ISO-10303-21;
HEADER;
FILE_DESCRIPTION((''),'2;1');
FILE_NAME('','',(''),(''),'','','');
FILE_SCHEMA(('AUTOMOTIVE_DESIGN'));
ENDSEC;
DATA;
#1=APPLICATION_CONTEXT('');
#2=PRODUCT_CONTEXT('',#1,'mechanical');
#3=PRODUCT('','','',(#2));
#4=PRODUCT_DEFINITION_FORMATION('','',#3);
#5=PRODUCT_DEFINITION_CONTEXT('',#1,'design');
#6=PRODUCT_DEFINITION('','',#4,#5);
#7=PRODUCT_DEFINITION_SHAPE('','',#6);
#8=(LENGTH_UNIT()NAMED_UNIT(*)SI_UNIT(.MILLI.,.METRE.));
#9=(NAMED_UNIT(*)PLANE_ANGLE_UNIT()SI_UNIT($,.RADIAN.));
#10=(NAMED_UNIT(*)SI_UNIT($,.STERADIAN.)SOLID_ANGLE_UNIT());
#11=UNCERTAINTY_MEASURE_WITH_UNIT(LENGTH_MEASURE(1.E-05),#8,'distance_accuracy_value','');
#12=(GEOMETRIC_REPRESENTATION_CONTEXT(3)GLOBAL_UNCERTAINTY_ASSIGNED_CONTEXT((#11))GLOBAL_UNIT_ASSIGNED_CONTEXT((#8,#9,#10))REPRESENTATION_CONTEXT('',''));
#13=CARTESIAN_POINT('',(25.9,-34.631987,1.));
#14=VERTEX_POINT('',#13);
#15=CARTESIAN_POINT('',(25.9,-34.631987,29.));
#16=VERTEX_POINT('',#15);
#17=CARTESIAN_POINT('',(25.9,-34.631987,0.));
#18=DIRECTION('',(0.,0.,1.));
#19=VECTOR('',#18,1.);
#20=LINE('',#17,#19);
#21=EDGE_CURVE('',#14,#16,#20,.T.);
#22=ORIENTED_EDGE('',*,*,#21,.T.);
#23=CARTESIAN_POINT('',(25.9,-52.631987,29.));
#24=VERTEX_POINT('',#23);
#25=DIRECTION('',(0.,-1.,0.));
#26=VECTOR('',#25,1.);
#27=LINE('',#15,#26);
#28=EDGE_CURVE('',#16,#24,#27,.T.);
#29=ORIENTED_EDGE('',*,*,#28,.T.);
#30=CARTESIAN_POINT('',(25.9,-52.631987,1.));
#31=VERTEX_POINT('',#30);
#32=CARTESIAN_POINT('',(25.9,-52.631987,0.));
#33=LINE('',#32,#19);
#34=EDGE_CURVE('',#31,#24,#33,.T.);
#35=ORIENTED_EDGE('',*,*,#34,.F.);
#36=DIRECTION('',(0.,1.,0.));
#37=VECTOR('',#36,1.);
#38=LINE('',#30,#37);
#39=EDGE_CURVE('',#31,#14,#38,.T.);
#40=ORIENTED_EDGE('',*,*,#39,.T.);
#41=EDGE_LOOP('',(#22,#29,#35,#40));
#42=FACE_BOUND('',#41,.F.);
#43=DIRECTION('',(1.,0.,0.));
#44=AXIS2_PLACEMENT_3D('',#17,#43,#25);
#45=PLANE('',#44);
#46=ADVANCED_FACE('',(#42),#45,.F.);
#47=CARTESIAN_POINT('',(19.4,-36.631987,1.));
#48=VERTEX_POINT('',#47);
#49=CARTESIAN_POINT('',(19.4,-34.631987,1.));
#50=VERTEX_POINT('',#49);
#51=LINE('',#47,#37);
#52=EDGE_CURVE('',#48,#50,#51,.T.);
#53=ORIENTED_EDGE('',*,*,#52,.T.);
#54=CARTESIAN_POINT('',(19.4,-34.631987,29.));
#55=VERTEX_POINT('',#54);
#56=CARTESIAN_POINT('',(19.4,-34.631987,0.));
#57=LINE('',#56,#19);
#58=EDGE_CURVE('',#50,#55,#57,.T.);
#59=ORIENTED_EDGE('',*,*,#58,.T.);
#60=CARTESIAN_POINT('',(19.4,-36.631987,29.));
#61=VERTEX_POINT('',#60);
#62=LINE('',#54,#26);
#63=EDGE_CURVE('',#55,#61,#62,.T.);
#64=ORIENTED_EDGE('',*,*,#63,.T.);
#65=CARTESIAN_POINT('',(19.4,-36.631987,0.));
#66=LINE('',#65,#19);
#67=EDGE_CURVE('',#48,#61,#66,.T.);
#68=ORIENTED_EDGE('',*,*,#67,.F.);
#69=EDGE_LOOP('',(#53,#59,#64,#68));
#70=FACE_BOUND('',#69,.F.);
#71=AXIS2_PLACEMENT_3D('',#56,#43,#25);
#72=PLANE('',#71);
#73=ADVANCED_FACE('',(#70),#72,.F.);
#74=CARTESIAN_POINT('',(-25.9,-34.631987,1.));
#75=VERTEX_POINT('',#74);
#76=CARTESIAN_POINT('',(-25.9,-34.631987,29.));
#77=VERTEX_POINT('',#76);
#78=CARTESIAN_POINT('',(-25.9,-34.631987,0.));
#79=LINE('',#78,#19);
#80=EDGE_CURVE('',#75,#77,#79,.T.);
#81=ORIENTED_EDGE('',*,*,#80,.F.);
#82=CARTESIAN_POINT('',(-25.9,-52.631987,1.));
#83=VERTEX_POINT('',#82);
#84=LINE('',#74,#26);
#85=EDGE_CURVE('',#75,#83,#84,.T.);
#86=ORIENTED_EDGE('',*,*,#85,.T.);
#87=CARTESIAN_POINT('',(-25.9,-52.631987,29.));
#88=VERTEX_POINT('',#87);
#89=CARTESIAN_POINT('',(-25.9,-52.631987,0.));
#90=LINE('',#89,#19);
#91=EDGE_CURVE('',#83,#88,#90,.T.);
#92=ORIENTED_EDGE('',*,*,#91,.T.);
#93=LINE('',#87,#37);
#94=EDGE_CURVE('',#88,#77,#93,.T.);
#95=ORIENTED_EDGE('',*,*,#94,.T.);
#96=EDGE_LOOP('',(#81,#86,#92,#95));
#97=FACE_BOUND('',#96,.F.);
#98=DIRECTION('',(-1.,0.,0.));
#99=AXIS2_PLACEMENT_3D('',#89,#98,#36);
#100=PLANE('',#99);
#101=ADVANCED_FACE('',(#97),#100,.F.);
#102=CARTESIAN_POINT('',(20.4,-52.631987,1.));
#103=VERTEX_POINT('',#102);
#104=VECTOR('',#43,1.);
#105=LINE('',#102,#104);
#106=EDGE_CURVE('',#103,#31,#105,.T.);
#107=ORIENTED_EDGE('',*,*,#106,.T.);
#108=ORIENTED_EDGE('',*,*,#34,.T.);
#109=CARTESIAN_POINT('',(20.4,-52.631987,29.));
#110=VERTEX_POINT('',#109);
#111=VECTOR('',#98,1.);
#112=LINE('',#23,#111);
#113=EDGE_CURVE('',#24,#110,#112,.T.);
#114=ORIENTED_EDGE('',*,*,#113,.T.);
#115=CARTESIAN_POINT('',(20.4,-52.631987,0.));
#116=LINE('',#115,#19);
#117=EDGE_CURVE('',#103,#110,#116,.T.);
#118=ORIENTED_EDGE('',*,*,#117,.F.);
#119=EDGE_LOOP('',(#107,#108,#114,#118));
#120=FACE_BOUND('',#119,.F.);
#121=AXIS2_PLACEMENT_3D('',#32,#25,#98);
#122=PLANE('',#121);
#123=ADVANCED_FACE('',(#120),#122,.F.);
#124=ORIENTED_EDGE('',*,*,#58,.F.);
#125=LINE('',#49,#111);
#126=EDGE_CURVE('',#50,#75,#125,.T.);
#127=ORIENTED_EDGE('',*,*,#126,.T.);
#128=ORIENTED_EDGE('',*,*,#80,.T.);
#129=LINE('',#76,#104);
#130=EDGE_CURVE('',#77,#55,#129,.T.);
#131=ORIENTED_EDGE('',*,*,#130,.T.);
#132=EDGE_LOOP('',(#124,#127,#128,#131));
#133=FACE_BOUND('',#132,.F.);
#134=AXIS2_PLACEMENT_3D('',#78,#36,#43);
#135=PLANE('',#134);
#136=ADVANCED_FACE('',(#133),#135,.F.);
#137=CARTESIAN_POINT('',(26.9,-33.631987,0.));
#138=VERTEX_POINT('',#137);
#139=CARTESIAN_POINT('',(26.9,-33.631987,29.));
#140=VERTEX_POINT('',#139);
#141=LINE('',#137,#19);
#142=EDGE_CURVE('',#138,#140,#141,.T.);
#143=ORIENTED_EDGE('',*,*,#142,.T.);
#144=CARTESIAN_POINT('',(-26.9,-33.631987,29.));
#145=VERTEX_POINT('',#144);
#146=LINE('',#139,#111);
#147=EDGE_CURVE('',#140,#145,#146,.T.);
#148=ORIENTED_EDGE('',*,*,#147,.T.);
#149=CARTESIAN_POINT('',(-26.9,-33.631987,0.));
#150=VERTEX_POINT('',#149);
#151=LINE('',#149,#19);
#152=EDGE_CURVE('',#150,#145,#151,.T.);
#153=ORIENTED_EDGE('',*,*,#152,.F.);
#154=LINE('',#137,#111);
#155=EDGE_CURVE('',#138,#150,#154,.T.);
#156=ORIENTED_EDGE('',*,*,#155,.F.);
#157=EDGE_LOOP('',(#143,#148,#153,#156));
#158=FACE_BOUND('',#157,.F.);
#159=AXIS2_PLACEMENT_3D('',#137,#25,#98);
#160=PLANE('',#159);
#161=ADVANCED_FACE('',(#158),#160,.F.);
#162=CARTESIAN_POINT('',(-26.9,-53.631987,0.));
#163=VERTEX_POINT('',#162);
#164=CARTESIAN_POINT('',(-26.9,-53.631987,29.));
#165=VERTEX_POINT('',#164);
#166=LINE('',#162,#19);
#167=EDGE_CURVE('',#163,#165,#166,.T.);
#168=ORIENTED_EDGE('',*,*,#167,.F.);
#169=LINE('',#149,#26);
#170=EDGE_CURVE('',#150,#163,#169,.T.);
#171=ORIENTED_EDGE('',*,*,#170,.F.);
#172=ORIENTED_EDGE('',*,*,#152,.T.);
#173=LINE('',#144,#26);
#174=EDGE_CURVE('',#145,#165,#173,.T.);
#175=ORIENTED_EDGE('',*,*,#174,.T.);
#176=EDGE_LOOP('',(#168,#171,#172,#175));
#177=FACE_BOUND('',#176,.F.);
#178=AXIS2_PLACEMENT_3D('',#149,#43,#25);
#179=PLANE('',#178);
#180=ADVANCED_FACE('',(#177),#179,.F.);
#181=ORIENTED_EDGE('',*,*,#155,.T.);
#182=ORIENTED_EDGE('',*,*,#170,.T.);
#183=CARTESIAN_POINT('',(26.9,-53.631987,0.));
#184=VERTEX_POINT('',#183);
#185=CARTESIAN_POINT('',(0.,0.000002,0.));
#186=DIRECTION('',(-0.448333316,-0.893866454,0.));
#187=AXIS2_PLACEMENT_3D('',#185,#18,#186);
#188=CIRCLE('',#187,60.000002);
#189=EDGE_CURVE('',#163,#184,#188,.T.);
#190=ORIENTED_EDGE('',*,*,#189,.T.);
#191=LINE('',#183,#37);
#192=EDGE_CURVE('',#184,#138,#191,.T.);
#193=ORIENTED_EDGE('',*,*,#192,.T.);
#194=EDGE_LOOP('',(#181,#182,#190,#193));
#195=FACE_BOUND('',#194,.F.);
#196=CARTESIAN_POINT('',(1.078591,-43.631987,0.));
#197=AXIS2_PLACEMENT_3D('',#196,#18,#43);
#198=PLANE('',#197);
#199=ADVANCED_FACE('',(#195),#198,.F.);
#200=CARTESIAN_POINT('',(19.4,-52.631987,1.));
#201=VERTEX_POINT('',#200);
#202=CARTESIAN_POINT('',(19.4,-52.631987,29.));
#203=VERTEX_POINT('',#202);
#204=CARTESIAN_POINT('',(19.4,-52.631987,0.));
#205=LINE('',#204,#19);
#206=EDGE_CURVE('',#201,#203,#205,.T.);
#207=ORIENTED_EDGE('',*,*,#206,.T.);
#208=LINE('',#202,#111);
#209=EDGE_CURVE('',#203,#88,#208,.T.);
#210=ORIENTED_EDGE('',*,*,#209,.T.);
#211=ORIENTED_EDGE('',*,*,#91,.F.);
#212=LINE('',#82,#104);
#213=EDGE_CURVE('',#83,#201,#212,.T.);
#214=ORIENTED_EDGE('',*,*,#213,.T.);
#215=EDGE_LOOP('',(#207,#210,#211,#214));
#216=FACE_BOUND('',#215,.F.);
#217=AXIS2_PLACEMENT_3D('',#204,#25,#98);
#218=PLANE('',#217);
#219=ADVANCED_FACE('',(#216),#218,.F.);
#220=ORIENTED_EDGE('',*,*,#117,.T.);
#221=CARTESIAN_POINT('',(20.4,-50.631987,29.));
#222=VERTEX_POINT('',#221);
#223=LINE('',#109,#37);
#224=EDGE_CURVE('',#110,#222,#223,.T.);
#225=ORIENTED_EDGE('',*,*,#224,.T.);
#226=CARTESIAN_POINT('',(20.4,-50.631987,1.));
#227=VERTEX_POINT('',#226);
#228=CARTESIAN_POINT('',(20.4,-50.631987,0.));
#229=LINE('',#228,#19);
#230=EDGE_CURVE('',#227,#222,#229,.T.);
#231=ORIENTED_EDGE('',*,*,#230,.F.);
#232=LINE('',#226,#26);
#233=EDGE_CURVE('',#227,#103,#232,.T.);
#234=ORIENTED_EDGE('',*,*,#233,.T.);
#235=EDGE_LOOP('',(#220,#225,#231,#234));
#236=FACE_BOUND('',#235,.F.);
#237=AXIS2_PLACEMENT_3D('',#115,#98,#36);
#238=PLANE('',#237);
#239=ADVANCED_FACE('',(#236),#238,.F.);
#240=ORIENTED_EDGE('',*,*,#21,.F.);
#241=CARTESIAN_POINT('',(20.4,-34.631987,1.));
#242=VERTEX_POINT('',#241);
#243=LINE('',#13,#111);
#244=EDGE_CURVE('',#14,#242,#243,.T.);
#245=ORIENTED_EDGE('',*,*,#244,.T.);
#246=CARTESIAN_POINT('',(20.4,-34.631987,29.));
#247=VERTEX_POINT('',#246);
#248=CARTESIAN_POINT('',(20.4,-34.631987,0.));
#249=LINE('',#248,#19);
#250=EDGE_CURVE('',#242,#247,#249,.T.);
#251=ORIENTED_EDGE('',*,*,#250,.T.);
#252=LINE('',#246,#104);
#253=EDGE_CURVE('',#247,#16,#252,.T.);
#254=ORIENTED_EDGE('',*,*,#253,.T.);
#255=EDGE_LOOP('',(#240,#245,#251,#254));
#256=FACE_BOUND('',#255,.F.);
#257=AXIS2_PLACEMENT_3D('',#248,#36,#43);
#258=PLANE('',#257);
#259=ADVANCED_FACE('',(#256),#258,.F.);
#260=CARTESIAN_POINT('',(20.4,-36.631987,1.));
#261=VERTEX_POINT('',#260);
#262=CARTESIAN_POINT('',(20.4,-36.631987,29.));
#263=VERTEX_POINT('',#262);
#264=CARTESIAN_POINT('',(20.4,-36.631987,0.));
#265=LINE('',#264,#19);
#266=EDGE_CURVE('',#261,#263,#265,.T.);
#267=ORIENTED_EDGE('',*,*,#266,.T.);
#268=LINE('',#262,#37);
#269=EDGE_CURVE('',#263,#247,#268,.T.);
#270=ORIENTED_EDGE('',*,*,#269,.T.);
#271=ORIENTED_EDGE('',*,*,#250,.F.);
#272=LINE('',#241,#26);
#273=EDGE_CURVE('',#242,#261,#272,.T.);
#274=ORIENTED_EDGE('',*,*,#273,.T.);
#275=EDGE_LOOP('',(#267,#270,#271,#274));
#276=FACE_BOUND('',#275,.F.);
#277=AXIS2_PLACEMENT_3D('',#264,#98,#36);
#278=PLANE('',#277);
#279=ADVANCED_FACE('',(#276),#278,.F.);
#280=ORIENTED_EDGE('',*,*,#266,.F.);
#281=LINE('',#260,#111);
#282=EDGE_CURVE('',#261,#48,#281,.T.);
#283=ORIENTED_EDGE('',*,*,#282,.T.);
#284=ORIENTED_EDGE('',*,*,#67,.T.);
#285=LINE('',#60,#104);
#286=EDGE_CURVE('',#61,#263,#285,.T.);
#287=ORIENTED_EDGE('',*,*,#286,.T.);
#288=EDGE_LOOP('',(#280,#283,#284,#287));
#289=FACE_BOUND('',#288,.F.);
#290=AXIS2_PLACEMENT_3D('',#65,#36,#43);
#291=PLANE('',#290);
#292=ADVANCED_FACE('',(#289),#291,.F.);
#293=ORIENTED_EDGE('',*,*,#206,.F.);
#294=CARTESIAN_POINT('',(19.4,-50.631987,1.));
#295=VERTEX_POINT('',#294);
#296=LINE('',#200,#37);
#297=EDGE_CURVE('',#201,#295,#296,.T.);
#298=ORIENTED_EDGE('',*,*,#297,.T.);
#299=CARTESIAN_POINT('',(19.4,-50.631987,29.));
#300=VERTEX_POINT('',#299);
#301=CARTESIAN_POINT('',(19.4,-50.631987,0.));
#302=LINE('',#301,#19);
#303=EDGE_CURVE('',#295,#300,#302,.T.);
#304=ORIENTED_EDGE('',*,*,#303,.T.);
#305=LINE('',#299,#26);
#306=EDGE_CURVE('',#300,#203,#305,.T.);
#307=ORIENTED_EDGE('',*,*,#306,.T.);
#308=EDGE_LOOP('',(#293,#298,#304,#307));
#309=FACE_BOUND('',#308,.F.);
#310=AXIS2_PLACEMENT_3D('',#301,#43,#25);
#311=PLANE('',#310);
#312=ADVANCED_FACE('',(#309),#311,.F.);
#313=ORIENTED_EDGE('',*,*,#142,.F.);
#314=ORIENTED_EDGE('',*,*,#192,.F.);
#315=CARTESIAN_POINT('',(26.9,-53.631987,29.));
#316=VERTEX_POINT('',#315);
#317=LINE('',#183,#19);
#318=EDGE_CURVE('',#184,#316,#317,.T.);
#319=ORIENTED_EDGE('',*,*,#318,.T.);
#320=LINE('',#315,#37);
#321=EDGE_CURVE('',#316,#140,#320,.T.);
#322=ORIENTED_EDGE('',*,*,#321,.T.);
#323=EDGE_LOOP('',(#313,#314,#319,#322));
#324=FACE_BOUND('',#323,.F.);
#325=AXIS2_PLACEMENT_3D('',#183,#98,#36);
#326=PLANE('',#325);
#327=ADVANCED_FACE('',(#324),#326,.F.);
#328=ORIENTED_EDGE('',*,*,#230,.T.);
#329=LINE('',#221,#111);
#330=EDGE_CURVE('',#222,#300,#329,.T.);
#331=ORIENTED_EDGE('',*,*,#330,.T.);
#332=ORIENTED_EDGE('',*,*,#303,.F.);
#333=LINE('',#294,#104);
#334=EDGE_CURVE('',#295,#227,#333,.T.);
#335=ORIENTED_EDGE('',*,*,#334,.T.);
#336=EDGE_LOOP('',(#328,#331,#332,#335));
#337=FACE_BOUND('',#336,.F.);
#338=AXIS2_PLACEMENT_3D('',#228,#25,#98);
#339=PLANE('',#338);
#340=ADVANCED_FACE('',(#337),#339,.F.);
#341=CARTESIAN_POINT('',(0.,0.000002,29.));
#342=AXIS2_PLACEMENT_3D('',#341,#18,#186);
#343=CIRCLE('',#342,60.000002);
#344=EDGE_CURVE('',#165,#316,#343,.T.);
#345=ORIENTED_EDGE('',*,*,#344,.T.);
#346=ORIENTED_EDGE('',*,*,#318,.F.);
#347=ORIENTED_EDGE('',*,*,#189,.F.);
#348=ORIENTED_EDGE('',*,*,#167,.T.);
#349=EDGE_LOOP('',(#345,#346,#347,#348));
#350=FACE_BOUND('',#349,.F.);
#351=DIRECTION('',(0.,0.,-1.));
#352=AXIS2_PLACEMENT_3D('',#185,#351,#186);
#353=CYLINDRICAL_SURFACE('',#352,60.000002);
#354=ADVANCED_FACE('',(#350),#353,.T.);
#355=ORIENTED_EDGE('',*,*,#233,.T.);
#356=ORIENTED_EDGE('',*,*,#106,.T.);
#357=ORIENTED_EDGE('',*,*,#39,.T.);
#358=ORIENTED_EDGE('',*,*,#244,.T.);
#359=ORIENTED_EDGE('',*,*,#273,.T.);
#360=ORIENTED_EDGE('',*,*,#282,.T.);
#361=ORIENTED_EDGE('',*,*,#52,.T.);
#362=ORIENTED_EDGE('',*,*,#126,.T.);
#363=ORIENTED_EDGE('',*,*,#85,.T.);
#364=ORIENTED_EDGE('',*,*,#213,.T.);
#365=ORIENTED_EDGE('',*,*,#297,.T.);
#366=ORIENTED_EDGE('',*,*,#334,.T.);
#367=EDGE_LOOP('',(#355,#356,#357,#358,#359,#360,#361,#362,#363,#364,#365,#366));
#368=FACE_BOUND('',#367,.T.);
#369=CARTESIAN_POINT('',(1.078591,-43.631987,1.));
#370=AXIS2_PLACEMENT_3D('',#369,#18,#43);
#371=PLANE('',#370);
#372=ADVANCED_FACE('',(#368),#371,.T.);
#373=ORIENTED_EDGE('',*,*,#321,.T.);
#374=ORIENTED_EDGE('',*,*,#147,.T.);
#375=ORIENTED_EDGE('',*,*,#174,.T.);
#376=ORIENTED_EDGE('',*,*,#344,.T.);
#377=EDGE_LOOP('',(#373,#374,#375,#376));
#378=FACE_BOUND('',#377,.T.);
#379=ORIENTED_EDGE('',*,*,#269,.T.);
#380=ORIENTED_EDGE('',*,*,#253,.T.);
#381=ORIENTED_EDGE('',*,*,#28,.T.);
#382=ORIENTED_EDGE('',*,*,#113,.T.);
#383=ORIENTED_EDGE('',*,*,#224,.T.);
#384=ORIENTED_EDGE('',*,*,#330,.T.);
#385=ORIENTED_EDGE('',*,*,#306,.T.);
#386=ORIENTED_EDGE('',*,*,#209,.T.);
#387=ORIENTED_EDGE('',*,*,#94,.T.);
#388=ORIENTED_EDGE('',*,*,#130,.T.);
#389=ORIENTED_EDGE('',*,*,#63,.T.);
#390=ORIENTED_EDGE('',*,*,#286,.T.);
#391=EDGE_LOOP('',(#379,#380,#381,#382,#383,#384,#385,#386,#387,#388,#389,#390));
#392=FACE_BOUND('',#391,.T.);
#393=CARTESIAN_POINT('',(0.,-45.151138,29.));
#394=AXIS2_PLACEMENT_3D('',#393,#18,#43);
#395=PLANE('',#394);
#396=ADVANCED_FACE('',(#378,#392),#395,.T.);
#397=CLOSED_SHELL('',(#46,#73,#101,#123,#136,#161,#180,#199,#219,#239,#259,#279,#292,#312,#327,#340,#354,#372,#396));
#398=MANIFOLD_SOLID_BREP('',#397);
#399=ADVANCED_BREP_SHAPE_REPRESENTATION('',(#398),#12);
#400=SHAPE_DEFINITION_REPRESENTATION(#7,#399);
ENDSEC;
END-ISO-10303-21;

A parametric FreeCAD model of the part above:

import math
import FreeCAD as App
import Part
import Sketcher
from FreeCAD import Vector


def add_polygon(sketch, points):
    """Adds a closed chain of lines whose ends are joined by coincident constraints."""
    first, n = sketch.GeometryCount, len(points)
    for a, b in zip(points, points[1:] + points[:1]):
        sketch.addGeometry(Part.LineSegment(App.Vector(*a, 0), App.Vector(*b, 0)), False)
    for i in range(n):
        sketch.addConstraint(Sketcher.Constraint("Coincident", first + i, 2, first + (i + 1) % n, 1))

doc = App.newDocument("Part")
body = doc.addObject("PartDesign::Body", "Body")

# Sketch on XY plane
sketch1 = body.newObject("Sketcher::SketchObject", "Sketch")
sketch1.AttachmentSupport = (doc.getObject("XY_Plane"), [""])
sketch1.MapMode = "FlatFace"
sketch1.addGeometry(Part.LineSegment(Vector(-26.9, -33.6, 0), Vector(-26.9, -53.6, 0)), False)  # 0
sketch1.addGeometry(Part.ArcOfCircle(Part.Circle(Vector(0, 0, 0), Vector(0, 0, 1), 60), math.radians(-117), math.radians(-63)), False)  # 1
sketch1.addGeometry(Part.LineSegment(Vector(26.9, -53.6, 0), Vector(26.9, -33.6, 0)), False)  # 2
sketch1.addGeometry(Part.LineSegment(Vector(26.9, -33.6, 0), Vector(-26.9, -33.6, 0)), False)  # 3
add_polygon(sketch1, [(-25.9, -52.6), (-25.9, -34.6), (19.4, -34.6), (19.4, -36.6), (20.4, -36.6), (20.4, -34.6), (25.9, -34.6), (25.9, -52.6), (20.4, -52.6), (20.4, -50.6), (19.4, -50.6), (19.4, -52.6)])  # lines 4-15
sketch1.addConstraint(Sketcher.Constraint("Coincident", 0, 2, 1, 1))
sketch1.addConstraint(Sketcher.Constraint("Coincident", 1, 2, 2, 1))
sketch1.addConstraint(Sketcher.Constraint("Coincident", 2, 2, 3, 1))
sketch1.addConstraint(Sketcher.Constraint("Coincident", 3, 2, 0, 1))
sketch1.addConstraint(Sketcher.Constraint("Vertical", 0))
sketch1.addConstraint(Sketcher.Constraint("Vertical", 2))
sketch1.addConstraint(Sketcher.Constraint("Horizontal", 3))
sketch1.addConstraint(Sketcher.Constraint("Vertical", 4))
sketch1.addConstraint(Sketcher.Constraint("Horizontal", 5))
sketch1.addConstraint(Sketcher.Constraint("Vertical", 6))
sketch1.addConstraint(Sketcher.Constraint("Horizontal", 7))
sketch1.addConstraint(Sketcher.Constraint("Vertical", 8))
sketch1.addConstraint(Sketcher.Constraint("Horizontal", 9))
sketch1.addConstraint(Sketcher.Constraint("Vertical", 10))
sketch1.addConstraint(Sketcher.Constraint("Horizontal", 11))
sketch1.addConstraint(Sketcher.Constraint("Vertical", 12))
sketch1.addConstraint(Sketcher.Constraint("Horizontal", 13))
sketch1.addConstraint(Sketcher.Constraint("Vertical", 14))
sketch1.addConstraint(Sketcher.Constraint("Horizontal", 15))
sketch1.addConstraint(Sketcher.Constraint("Coincident", 1, 3, -1, 1))
sketch1.addConstraint(Sketcher.Constraint("Symmetric", 4, 2, 9, 2, -2))
sketch1.addConstraint(Sketcher.Constraint("Horizontal", 0, 2, 1, 2))
sketch1.addConstraint(Sketcher.Constraint("Horizontal", 11, 2, 14, 2))
sketch1.addConstraint(Sketcher.Constraint("Vertical", 8, 2, 11, 2))
sketch1.addConstraint(Sketcher.Constraint("Vertical", 6, 2, 13, 2))
sketch1.addConstraint(Sketcher.Constraint("Equal", 8, 12))
sketch1.addConstraint(Sketcher.Constraint("DistanceX", 7, 1, 7, 2, 1.0))
sketch1.addConstraint(Sketcher.Constraint("DistanceY", 0, 2, 0, 1, 20.0))
sketch1.addConstraint(Sketcher.Constraint("DistanceY", 4, 1, 4, 2, 18.0))
sketch1.addConstraint(Sketcher.Constraint("DistanceY", 6, 2, 6, 1, 2.0))
sketch1.addConstraint(Sketcher.Constraint("DistanceX", 3, 2, 3, 1, 53.8))
sketch1.addConstraint(Sketcher.Constraint("DistanceX", 5, 1, 5, 2, 45.3))
sketch1.addConstraint(Sketcher.Constraint("DistanceX", 9, 1, 9, 2, 5.5))
sketch1.addConstraint(Sketcher.Constraint("DistanceY", 4, 2, 3, 2, 1.0))
sketch1.addConstraint(Sketcher.Constraint("Radius", 1, 60.000002))
pad1 = body.newObject("PartDesign::Pad", "Pad")
pad1.Profile = sketch1
pad1.Length = 29

# Sketch on XY plane
sketch2 = body.newObject("Sketcher::SketchObject", "Sketch001")
sketch2.AttachmentSupport = (doc.getObject("XY_Plane"), [""])
sketch2.MapMode = "FlatFace"
add_polygon(sketch2, [(19.4, -34.6), (-25.9, -34.6), (-25.9, -52.6), (19.4, -52.6), (19.4, -50.6), (20.4, -50.6), (20.4, -52.6), (25.9, -52.6), (25.9, -34.6), (20.4, -34.6), (20.4, -36.6), (19.4, -36.6)])  # lines 0-11
sketch2.addConstraint(Sketcher.Constraint("Horizontal", 0))
sketch2.addConstraint(Sketcher.Constraint("Vertical", 1))
sketch2.addConstraint(Sketcher.Constraint("Horizontal", 2))
sketch2.addConstraint(Sketcher.Constraint("Vertical", 3))
sketch2.addConstraint(Sketcher.Constraint("Horizontal", 4))
sketch2.addConstraint(Sketcher.Constraint("Vertical", 5))
sketch2.addConstraint(Sketcher.Constraint("Horizontal", 6))
sketch2.addConstraint(Sketcher.Constraint("Vertical", 7))
sketch2.addConstraint(Sketcher.Constraint("Horizontal", 8))
sketch2.addConstraint(Sketcher.Constraint("Vertical", 9))
sketch2.addConstraint(Sketcher.Constraint("Horizontal", 10))
sketch2.addConstraint(Sketcher.Constraint("Vertical", 11))
sketch2.addConstraint(Sketcher.Constraint("Symmetric", 1, 2, 6, 2, -2))
sketch2.addConstraint(Sketcher.Constraint("Horizontal", 0, 2, 7, 2))
sketch2.addConstraint(Sketcher.Constraint("Vertical", 5, 2, 8, 2))
sketch2.addConstraint(Sketcher.Constraint("Vertical", 3, 2, 10, 2))
sketch2.addConstraint(Sketcher.Constraint("Equal", 5, 9))
sketch2.addConstraint(Sketcher.Constraint("DistanceX", 4, 1, 4, 2, 1.0))
sketch2.addConstraint(Sketcher.Constraint("DistanceY", 1, 2, 1, 1, 18.0))
sketch2.addConstraint(Sketcher.Constraint("DistanceY", 3, 1, 3, 2, 2.0))
sketch2.addConstraint(Sketcher.Constraint("DistanceX", 0, 2, 0, 1, 45.3))
sketch2.addConstraint(Sketcher.Constraint("DistanceX", 6, 1, 6, 2, 5.5))
sketch2.addConstraint(Sketcher.Constraint("DistanceY", 0, 2, -1, 1, 34.631987))
pad2 = body.newObject("PartDesign::Pad", "Pad001")
pad2.Profile = sketch2
pad2.Length = 1

doc.recompute()
